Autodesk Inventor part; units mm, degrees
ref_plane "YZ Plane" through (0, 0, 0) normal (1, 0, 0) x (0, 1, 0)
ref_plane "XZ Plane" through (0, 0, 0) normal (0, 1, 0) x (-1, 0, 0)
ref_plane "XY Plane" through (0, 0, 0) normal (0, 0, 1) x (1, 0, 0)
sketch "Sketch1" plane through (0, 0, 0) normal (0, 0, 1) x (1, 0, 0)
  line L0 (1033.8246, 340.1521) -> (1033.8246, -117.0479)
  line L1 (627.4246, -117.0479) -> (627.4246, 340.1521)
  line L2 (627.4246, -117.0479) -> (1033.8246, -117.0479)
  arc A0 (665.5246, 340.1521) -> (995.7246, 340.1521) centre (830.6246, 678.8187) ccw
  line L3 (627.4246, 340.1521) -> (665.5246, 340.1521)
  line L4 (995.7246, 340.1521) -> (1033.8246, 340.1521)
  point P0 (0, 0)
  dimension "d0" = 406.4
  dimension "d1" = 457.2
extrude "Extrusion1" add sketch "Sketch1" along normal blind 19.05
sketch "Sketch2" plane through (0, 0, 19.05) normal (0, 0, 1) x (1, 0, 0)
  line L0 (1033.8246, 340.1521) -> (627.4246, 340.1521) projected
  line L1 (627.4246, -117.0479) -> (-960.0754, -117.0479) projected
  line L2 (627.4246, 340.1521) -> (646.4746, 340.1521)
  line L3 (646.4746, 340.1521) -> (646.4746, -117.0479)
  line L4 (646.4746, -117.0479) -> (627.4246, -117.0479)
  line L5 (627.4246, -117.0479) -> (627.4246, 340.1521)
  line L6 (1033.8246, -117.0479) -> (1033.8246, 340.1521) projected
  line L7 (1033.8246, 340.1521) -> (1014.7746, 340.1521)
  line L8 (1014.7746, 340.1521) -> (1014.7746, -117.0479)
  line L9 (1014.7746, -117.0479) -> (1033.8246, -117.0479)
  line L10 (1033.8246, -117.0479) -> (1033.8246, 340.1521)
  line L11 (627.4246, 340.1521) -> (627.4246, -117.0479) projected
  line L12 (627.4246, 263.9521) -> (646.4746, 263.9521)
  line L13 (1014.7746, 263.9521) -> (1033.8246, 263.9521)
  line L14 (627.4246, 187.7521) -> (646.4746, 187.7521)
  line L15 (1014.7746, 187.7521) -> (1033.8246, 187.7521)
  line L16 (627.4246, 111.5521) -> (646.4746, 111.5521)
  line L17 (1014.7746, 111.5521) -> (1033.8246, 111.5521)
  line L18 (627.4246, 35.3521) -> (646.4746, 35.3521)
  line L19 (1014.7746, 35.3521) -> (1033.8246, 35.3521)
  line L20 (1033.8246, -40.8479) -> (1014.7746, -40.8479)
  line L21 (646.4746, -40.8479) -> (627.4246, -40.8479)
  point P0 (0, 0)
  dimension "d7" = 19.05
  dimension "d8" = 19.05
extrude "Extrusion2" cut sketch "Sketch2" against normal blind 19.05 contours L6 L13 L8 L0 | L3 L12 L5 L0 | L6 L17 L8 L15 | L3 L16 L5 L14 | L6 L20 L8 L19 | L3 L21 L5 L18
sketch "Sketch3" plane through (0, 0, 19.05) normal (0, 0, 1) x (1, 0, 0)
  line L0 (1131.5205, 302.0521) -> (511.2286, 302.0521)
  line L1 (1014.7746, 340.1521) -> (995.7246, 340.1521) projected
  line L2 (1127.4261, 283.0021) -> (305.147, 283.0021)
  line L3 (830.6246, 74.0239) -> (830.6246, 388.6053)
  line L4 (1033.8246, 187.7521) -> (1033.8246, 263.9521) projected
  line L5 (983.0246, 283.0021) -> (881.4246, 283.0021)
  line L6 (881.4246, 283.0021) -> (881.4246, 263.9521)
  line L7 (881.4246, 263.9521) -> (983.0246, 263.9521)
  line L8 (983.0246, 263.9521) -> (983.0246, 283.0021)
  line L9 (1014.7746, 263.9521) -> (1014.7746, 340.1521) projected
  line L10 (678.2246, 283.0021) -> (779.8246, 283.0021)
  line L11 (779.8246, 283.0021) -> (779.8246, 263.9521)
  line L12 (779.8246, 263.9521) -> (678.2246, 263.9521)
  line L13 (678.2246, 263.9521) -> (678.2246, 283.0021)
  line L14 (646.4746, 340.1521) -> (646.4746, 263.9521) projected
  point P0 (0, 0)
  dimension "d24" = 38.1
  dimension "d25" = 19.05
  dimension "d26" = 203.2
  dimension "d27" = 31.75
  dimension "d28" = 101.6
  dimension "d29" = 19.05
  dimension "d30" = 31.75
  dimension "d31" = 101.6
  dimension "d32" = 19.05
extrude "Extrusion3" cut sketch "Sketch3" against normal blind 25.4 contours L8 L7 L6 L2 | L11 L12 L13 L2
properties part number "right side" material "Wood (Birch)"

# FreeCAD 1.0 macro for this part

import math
import FreeCAD as App
import Part
import Sketcher
Q = App.Units.Quantity

doc = App.newDocument("Part")
params = doc.addObject("Spreadsheet::Sheet", "Params")
for row, (alias, value) in enumerate([
    ("sketch1_width", "16 in"),
    ("sketch1_height", "18 in"),
    ("sketch1_width2", "1.5 in"),
    ("pad1_length", "0.75 in"),
    ("sketch2_width", "0.75 in"),
    ("sketch2_height", "3 in"),
    ("pocket1_length", "0.75 in"),
    ("sketch3_width", "4 in"),
    ("sketch3_height", "0.75 in"),
    ("pocket2_length", "1 in"),
], start=1):
    params.set(f"A{row}", alias)
    params.set(f"B{row}", "=" + value)
    params.setAlias(f"B{row}", alias)

body = doc.addObject("PartDesign::Body", "Body")

# Sketch on XY plane
sketch1 = doc.addObject("Sketcher::SketchObject", "Sketch")
body.addObject(sketch1)
sketch1.AttachmentSupport = (doc.XY_Plane, [""])
sketch1.MapMode = "FlatFace"
sketch1.addGeometry([
    Part.LineSegment(App.Vector(1034, -117, 0), App.Vector(1034, 340, 0)),  # 0
    Part.LineSegment(App.Vector(1034, 340, 0), App.Vector(996, 340, 0)),  # 1
    Part.ArcOfCircle(Part.Circle(App.Vector(831, 679, 0), App.Vector(0, 0, 1), 377), math.radians(-116), math.radians(-64)),  # 2
    Part.LineSegment(App.Vector(666, 340, 0), App.Vector(627, 340, 0)),  # 3
    Part.LineSegment(App.Vector(627, 340, 0), App.Vector(627, -117, 0)),  # 4
    Part.LineSegment(App.Vector(627, -117, 0), App.Vector(1034, -117, 0)),  # 5
], False)
sketch1.addConstraint([
    Sketcher.Constraint("Coincident", 0, 2, 1, 1),
    Sketcher.Constraint("Coincident", 1, 2, 2, 2),
    Sketcher.Constraint("Coincident", 2, 1, 3, 1),
    Sketcher.Constraint("Coincident", 3, 2, 4, 1),
    Sketcher.Constraint("Coincident", 4, 2, 5, 1),
    Sketcher.Constraint("Coincident", 5, 2, 0, 1),
    Sketcher.Constraint("Vertical", 0),
    Sketcher.Constraint("Horizontal", 1),
    Sketcher.Constraint("Horizontal", 3),
    Sketcher.Constraint("Vertical", 4),
    Sketcher.Constraint("Horizontal", 5),
    Sketcher.Constraint("Horizontal", 1, 2, 2, 1),
    Sketcher.Constraint("Equal", 1, 3),
    Sketcher.Constraint("DistanceX", 5, 1, 5, 2, Q("16 in")),
    Sketcher.Constraint("DistanceY", 0, 1, 0, 2, Q("18 in")),
    Sketcher.Constraint("DistanceX", 1, 2, 1, 1, Q("1.5 in")),
    Sketcher.Constraint("Radius", 2, Q("376.7666 mm")),
    Sketcher.Constraint("DistanceX", -1, 1, 2, 3, Q("830.6246 mm")),
    Sketcher.Constraint("DistanceY", -1, 1, 2, 3, Q("678.8187 mm")),
])
sketch1.setExpression("Constraints[13]", "Params.sketch1_width")
sketch1.setExpression("Constraints[14]", "Params.sketch1_height")
sketch1.setExpression("Constraints[15]", "Params.sketch1_width2")
pad1 = doc.addObject("PartDesign::Pad", "Pad")
body.addObject(pad1)
pad1.Profile = sketch1
pad1.setExpression("Length", "Params.pad1_length")

# Sketch on XY plane
sketch2 = doc.addObject("Sketcher::SketchObject", "Sketch001")
body.addObject(sketch2)
sketch2.AttachmentSupport = (doc.XY_Plane, [""])
sketch2.MapMode = "FlatFace"
sketch2.AttachmentOffset = App.Placement(App.Vector(0, 0, 0.75 * 25.4), App.Rotation())
sketch2.addGeometry([
    Part.LineSegment(App.Vector(1034, 264, 0), App.Vector(1034, 340, 0)),  # 0
    Part.LineSegment(App.Vector(1034, 340, 0), App.Vector(1015, 340, 0)),  # 1
    Part.LineSegment(App.Vector(1015, 340, 0), App.Vector(1015, 264, 0)),  # 2
    Part.LineSegment(App.Vector(1015, 264, 0), App.Vector(1034, 264, 0)),  # 3
    Part.LineSegment(App.Vector(646, 264, 0), App.Vector(646, 340, 0)),  # 4
    Part.LineSegment(App.Vector(646, 340, 0), App.Vector(627, 340, 0)),  # 5
    Part.LineSegment(App.Vector(627, 340, 0), App.Vector(627, 264, 0)),  # 6
    Part.LineSegment(App.Vector(627, 264, 0), App.Vector(646, 264, 0)),  # 7
    Part.LineSegment(App.Vector(1034, 112, 0), App.Vector(1034, 188, 0)),  # 8
    Part.LineSegment(App.Vector(1034, 188, 0), App.Vector(1015, 188, 0)),  # 9
    Part.LineSegment(App.Vector(1015, 188, 0), App.Vector(1015, 112, 0)),  # 10
    Part.LineSegment(App.Vector(1015, 112, 0), App.Vector(1034, 112, 0)),  # 11
    Part.LineSegment(App.Vector(646, 112, 0), App.Vector(646, 188, 0)),  # 12
    Part.LineSegment(App.Vector(646, 188, 0), App.Vector(627, 188, 0)),  # 13
    Part.LineSegment(App.Vector(627, 188, 0), App.Vector(627, 112, 0)),  # 14
    Part.LineSegment(App.Vector(627, 112, 0), App.Vector(646, 112, 0)),  # 15
    Part.LineSegment(App.Vector(1034, -41, 0), App.Vector(1034, 35, 0)),  # 16
    Part.LineSegment(App.Vector(1034, 35, 0), App.Vector(1015, 35, 0)),  # 17
    Part.LineSegment(App.Vector(1015, 35, 0), App.Vector(1015, -41, 0)),  # 18
    Part.LineSegment(App.Vector(1015, -41, 0), App.Vector(1034, -41, 0)),  # 19
    Part.LineSegment(App.Vector(646, -41, 0), App.Vector(646, 35, 0)),  # 20
    Part.LineSegment(App.Vector(646, 35, 0), App.Vector(627, 35, 0)),  # 21
    Part.LineSegment(App.Vector(627, 35, 0), App.Vector(627, -41, 0)),  # 22
    Part.LineSegment(App.Vector(627, -41, 0), App.Vector(646, -41, 0)),  # 23
], False)
sketch2.addConstraint([
    Sketcher.Constraint("Coincident", 0, 2, 1, 1),
    Sketcher.Constraint("Coincident", 1, 2, 2, 1),
    Sketcher.Constraint("Coincident", 2, 2, 3, 1),
    Sketcher.Constraint("Coincident", 3, 2, 0, 1),
    Sketcher.Constraint("Coincident", 4, 2, 5, 1),
    Sketcher.Constraint("Coincident", 5, 2, 6, 1),
    Sketcher.Constraint("Coincident", 6, 2, 7, 1),
    Sketcher.Constraint("Coincident", 7, 2, 4, 1),
    Sketcher.Constraint("Coincident", 8, 2, 9, 1),
    Sketcher.Constraint("Coincident", 9, 2, 10, 1),
    Sketcher.Constraint("Coincident", 10, 2, 11, 1),
    Sketcher.Constraint("Coincident", 11, 2, 8, 1),
    Sketcher.Constraint("Coincident", 12, 2, 13, 1),
    Sketcher.Constraint("Coincident", 13, 2, 14, 1),
    Sketcher.Constraint("Coincident", 14, 2, 15, 1),
    Sketcher.Constraint("Coincident", 15, 2, 12, 1),
    Sketcher.Constraint("Coincident", 16, 2, 17, 1),
    Sketcher.Constraint("Coincident", 17, 2, 18, 1),
    Sketcher.Constraint("Coincident", 18, 2, 19, 1),
    Sketcher.Constraint("Coincident", 19, 2, 16, 1),
    Sketcher.Constraint("Coincident", 20, 2, 21, 1),
    Sketcher.Constraint("Coincident", 21, 2, 22, 1),
    Sketcher.Constraint("Coincident", 22, 2, 23, 1),
    Sketcher.Constraint("Coincident", 23, 2, 20, 1),
    Sketcher.Constraint("Vertical", 0),
    Sketcher.Constraint("Horizontal", 1),
    Sketcher.Constraint("Vertical", 2),
    Sketcher.Constraint("Horizontal", 3),
    Sketcher.Constraint("Vertical", 4),
    Sketcher.Constraint("Horizontal", 5),
    Sketcher.Constraint("Vertical", 6),
    Sketcher.Constraint("Horizontal", 7),
    Sketcher.Constraint("Vertical", 8),
    Sketcher.Constraint("Horizontal", 9),
    Sketcher.Constraint("Vertical", 10),
    Sketcher.Constraint("Horizontal", 11),
    Sketcher.Constraint("Vertical", 12),
    Sketcher.Constraint("Horizontal", 13),
    Sketcher.Constraint("Vertical", 14),
    Sketcher.Constraint("Horizontal", 15),
    Sketcher.Constraint("Vertical", 16),
    Sketcher.Constraint("Horizontal", 17),
    Sketcher.Constraint("Vertical", 18),
    Sketcher.Constraint("Horizontal", 19),
    Sketcher.Constraint("Vertical", 20),
    Sketcher.Constraint("Horizontal", 21),
    Sketcher.Constraint("Vertical", 22),
    Sketcher.Constraint("Horizontal", 23),
    Sketcher.Constraint("Horizontal", 1, 2, 4, 2),
    Sketcher.Constraint("Horizontal", 3, 2, 6, 2),
    Sketcher.Constraint("Horizontal", 9, 2, 12, 2),
    Sketcher.Constraint("Horizontal", 11, 2, 14, 2),
    Sketcher.Constraint("Horizontal", 17, 2, 20, 2),
    Sketcher.Constraint("Horizontal", 19, 2, 22, 2),
    Sketcher.Constraint("Vertical", 3, 2, 8, 2),
    Sketcher.Constraint("Vertical", 2, 2, 9, 2),
    Sketcher.Constraint("Vertical", 7, 2, 12, 2),
    Sketcher.Constraint("Vertical", 6, 2, 13, 2),
    Sketcher.Constraint("Vertical", 11, 2, 16, 2),
    Sketcher.Constraint("Vertical", 10, 2, 17, 2),
    Sketcher.Constraint("Vertical", 15, 2, 20, 2),
    Sketcher.Constraint("Vertical", 14, 2, 21, 2),
    Sketcher.Constraint("Equal", 3, 5),
    Sketcher.Constraint("Equal", 6, 8),
    Sketcher.Constraint("Equal", 14, 16),
    Sketcher.Constraint("DistanceX", 1, 2, 1, 1, Q("0.75 in")),
    Sketcher.Constraint("DistanceY", 0, 1, 0, 2, Q("3 in")),
    Sketcher.Constraint("DistanceX", 5, 2, 0, 2, Q("16 in")),
    Sketcher.Constraint("DistanceY", 8, 2, 3, 2, Q("3 in")),
    Sketcher.Constraint("DistanceY", 16, 2, 11, 2, Q("3 in")),
    Sketcher.Constraint("DistanceX", -1, 1, 0, 2, Q("1033.8246 mm")),
    Sketcher.Constraint("DistanceY", -1, 1, 0, 2, Q("13.391811 in")),
])
sketch2.setExpression("Constraints[65]", "Params.sketch2_width")
sketch2.setExpression("Constraints[66]", "Params.sketch2_height")
pocket1 = doc.addObject("PartDesign::Pocket", "Pocket")
body.addObject(pocket1)
pocket1.Profile = sketch2
pocket1.setExpression("Length", "Params.pocket1_length")

# Sketch on XY plane
sketch3 = doc.addObject("Sketcher::SketchObject", "Sketch002")
body.addObject(sketch3)
sketch3.AttachmentSupport = (doc.XY_Plane, [""])
sketch3.MapMode = "FlatFace"
sketch3.AttachmentOffset = App.Placement(App.Vector(0, 0, 0.75 * 25.4), App.Rotation())
sketch3.addGeometry([
    Part.LineSegment(App.Vector(983, 264, 0), App.Vector(983, 283, 0)),  # 0
    Part.LineSegment(App.Vector(983, 283, 0), App.Vector(881, 283, 0)),  # 1
    Part.LineSegment(App.Vector(881, 283, 0), App.Vector(881, 264, 0)),  # 2
    Part.LineSegment(App.Vector(881, 264, 0), App.Vector(983, 264, 0)),  # 3
    Part.LineSegment(App.Vector(780, 264, 0), App.Vector(780, 283, 0)),  # 4
    Part.LineSegment(App.Vector(780, 283, 0), App.Vector(678, 283, 0)),  # 5
    Part.LineSegment(App.Vector(678, 283, 0), App.Vector(678, 264, 0)),  # 6
    Part.LineSegment(App.Vector(678, 264, 0), App.Vector(780, 264, 0)),  # 7
], False)
sketch3.addConstraint([
    Sketcher.Constraint("Coincident", 0, 2, 1, 1),
    Sketcher.Constraint("Coincident", 1, 2, 2, 1),
    Sketcher.Constraint("Coincident", 2, 2, 3, 1),
    Sketcher.Constraint("Coincident", 3, 2, 0, 1),
    Sketcher.Constraint("Coincident", 4, 2, 5, 1),
    Sketcher.Constraint("Coincident", 5, 2, 6, 1),
    Sketcher.Constraint("Coincident", 6, 2, 7, 1),
    Sketcher.Constraint("Coincident", 7, 2, 4, 1),
    Sketcher.Constraint("Vertical", 0),
    Sketcher.Constraint("Horizontal", 1),
    Sketcher.Constraint("Vertical", 2),
    Sketcher.Constraint("Horizontal", 3),
    Sketcher.Constraint("Vertical", 4),
    Sketcher.Constraint("Horizontal", 5),
    Sketcher.Constraint("Vertical", 6),
    Sketcher.Constraint("Horizontal", 7),
    Sketcher.Constraint("Horizontal", 1, 2, 4, 2),
    Sketcher.Constraint("Horizontal", 3, 2, 6, 2),
    Sketcher.Constraint("Equal", 3, 5),
    Sketcher.Constraint("DistanceX", 1, 2, 1, 1, Q("4 in")),
    Sketcher.Constraint("DistanceX", 4, 2, 1, 2, Q("4 in")),
    Sketcher.Constraint("DistanceY", 0, 1, 0, 2, Q("0.75 in")),
    Sketcher.Constraint("DistanceX", -1, 1, 0, 2, Q("983.0246 mm")),
    Sketcher.Constraint("DistanceY", -1, 1, 0, 2, Q("11.141811 in")),
])
sketch3.setExpression("Constraints[19]", "Params.sketch3_width")
sketch3.setExpression("Constraints[21]", "Params.sketch3_height")
pocket2 = doc.addObject("PartDesign::Pocket", "Pocket001")
body.addObject(pocket2)
pocket2.Profile = sketch3
pocket2.setExpression("Length", "Params.pocket2_length")

doc.recompute()
